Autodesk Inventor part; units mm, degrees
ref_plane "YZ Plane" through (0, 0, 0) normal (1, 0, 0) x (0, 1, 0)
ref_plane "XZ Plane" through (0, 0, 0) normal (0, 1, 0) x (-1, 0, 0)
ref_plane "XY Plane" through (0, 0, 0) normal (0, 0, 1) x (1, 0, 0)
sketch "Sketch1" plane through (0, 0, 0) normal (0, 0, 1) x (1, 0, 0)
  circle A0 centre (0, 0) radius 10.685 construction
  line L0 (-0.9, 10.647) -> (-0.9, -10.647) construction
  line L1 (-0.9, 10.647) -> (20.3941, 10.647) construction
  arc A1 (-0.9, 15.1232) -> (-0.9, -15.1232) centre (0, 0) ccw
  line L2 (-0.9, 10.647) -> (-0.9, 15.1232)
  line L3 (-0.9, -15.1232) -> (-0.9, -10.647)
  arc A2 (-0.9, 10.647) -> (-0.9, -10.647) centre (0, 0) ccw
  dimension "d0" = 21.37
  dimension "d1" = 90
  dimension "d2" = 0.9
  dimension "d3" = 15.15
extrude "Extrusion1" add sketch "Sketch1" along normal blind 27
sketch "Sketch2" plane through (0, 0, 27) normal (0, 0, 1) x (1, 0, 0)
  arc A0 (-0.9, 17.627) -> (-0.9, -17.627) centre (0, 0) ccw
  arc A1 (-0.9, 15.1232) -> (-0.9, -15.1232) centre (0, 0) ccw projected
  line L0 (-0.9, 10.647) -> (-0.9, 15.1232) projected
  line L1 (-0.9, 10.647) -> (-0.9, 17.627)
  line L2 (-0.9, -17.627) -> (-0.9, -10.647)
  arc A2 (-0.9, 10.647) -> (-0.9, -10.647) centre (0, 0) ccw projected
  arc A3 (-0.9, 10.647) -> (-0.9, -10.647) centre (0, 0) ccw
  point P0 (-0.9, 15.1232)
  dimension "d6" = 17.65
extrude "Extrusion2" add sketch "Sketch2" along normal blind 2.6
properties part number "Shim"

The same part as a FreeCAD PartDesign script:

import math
import FreeCAD as App
import Part
import Sketcher

V = App.Vector

doc = App.newDocument("Part")
body = doc.addObject("PartDesign::Body", "Body")

# Sketch on XY plane
sketch1 = body.newObject("Sketcher::SketchObject", "Sketch")
sketch1.AttachmentSupport = (doc.getObject("XY_Plane"), [""])
sketch1.MapMode = "FlatFace"
sketch1.addGeometry(Part.LineSegment(V(-0.9, 10.647, 0), V(-0.9, 15.1232, 0)), False)
sketch1.addGeometry(Part.ArcOfCircle(Part.Circle(V(0, 0, 0), V(0, 0, 1), 15.149956), math.radians(93.405725), math.radians(266.594275)), False)
sketch1.addGeometry(Part.LineSegment(V(-0.9, -15.1232, 0), V(-0.9, -10.647, 0)), False)
sketch1.addGeometry(Part.ArcOfCircle(Part.Circle(V(0, 0, 0), V(0, 0, 1), 10.684971), math.radians(94.831775), math.radians(265.168225)), False)
sketch1.addConstraint(Sketcher.Constraint("Coincident", 0, 2, 1, 1))
sketch1.addConstraint(Sketcher.Constraint("Coincident", 1, 2, 2, 1))
sketch1.addConstraint(Sketcher.Constraint("Coincident", 2, 2, 3, 2))
sketch1.addConstraint(Sketcher.Constraint("Coincident", 3, 1, 0, 1))
sketch1.addConstraint(Sketcher.Constraint("Vertical", 0))
sketch1.addConstraint(Sketcher.Constraint("Vertical", 2))
sketch1.addConstraint(Sketcher.Constraint("Coincident", 1, 3, -1, 1))
sketch1.addConstraint(Sketcher.Constraint("Coincident", 3, 3, -1, 1))
sketch1.addConstraint(Sketcher.Constraint("Vertical", 0, 2, 1, 2))
sketch1.addConstraint(Sketcher.Constraint("Radius", 1, 15.15))
sketch1.addConstraint(Sketcher.Constraint("Radius", 3, 10.685))
sketch1.addConstraint(Sketcher.Constraint("DistanceX", 0, 2, -1, 1, 0.9))
pad1 = body.newObject("PartDesign::Pad", "Pad")
pad1.Profile = sketch1
pad1.Length = 27

# Sketch on XY plane
sketch2 = body.newObject("Sketcher::SketchObject", "Sketch001")
sketch2.AttachmentSupport = (doc.getObject("XY_Plane"), [""])
sketch2.MapMode = "FlatFace"
sketch2.AttachmentOffset = App.Placement(V(0, 0, 27), App.Rotation())
sketch2.addGeometry(Part.ArcOfCircle(Part.Circle(V(0, 0, 0), V(0, 0, 1), 17.649961), math.radians(92.922872), math.radians(267.077128)), False)
sketch2.addGeometry(Part.LineSegment(V(-0.9, -17.627, 0), V(-0.9, -10.647, 0)), False)
sketch2.addGeometry(Part.ArcOfCircle(Part.Circle(V(0, 0, 0), V(0, 0, 1), 10.684971), math.radians(94.831775), math.radians(265.168225)), False)
sketch2.addGeometry(Part.LineSegment(V(-0.9, 10.647, 0), V(-0.9, 17.627, 0)), False)
sketch2.addConstraint(Sketcher.Constraint("Coincident", 0, 2, 1, 1))
sketch2.addConstraint(Sketcher.Constraint("Coincident", 1, 2, 2, 2))
sketch2.addConstraint(Sketcher.Constraint("Coincident", 2, 1, 3, 1))
sketch2.addConstraint(Sketcher.Constraint("Coincident", 3, 2, 0, 1))
sketch2.addConstraint(Sketcher.Constraint("Vertical", 1))
sketch2.addConstraint(Sketcher.Constraint("Vertical", 3))
sketch2.addConstraint(Sketcher.Constraint("Coincident", 0, 3, -1, 1))
sketch2.addConstraint(Sketcher.Constraint("Coincident", 2, 3, -1, 1))
sketch2.addConstraint(Sketcher.Constraint("Vertical", 1, 2, 2, 1))
sketch2.addConstraint(Sketcher.Constraint("Radius", 0, 17.65))
sketch2.addConstraint(Sketcher.Constraint("Radius", 2, 10.685))
sketch2.addConstraint(Sketcher.Constraint("DistanceY", 1, 1, 1, 2, 6.98))
pad2 = body.newObject("PartDesign::Pad", "Pad001")
pad2.Profile = sketch2
pad2.Length = 2.6

doc.recompute()
